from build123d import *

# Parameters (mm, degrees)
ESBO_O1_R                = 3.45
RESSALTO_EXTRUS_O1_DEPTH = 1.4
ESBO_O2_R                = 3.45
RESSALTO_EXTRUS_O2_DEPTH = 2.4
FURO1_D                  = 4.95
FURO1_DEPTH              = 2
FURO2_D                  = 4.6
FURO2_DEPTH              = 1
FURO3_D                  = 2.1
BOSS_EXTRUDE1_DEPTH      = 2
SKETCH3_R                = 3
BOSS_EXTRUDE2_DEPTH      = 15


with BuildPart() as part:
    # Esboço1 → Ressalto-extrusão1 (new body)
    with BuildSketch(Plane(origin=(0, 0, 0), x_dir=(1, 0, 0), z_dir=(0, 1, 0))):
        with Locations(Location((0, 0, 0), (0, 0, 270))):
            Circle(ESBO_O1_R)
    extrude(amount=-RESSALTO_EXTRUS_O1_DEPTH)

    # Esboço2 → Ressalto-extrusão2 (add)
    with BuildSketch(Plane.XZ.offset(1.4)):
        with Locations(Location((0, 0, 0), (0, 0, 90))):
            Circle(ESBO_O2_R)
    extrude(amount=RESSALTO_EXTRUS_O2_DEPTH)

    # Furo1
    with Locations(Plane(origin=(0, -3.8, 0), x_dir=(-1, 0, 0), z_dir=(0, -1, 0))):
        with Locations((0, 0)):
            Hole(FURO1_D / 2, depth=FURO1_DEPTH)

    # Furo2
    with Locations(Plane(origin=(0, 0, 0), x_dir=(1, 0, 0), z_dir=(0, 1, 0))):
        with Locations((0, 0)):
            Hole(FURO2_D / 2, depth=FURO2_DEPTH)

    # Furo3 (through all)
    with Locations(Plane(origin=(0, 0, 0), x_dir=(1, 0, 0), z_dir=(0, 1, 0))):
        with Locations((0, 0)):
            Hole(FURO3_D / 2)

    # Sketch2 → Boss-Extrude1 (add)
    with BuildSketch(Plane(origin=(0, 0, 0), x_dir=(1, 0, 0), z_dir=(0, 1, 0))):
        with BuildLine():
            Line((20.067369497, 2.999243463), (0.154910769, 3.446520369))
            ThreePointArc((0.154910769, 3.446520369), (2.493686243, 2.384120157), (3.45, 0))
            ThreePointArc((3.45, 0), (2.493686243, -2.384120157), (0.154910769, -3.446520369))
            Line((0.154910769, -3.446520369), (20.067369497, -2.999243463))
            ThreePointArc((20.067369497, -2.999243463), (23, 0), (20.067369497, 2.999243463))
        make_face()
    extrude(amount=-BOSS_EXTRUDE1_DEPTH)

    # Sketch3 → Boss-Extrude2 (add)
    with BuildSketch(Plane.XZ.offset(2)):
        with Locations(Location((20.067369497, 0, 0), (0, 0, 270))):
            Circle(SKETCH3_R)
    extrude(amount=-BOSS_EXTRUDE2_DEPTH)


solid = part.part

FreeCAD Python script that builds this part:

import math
import FreeCAD as App
import Part
import Sketcher
from FreeCAD import Vector
Q = App.Units.Quantity

doc = App.newDocument("Part")
body = doc.addObject("PartDesign::Body", "Body")

sketch1 = body.newObject("Sketcher::SketchObject", "Sketch")
sketch1.AttachmentSupport = (doc.getObject("XZ_Plane"), [""])
sketch1.MapMode = "FlatFace"
sketch1.addGeometry(Part.Circle(Vector(0, 0, 0), Vector(0, 0, 1), 3.5), False)
sketch1.addConstraint(Sketcher.Constraint("Coincident", 0, 3, -1, 1))
sketch1.addConstraint(Sketcher.Constraint("Diameter", 0, Q("6.9 mm")))
pad1 = body.newObject("PartDesign::Pad", "Pad")
pad1.Profile = sketch1
pad1.Length = 1.4

sketch2 = body.newObject("Sketcher::SketchObject", "Sketch001")
sketch2.AttachmentSupport = (doc.getObject("XZ_Plane"), [""])
sketch2.MapMode = "FlatFace"
sketch2.AttachmentOffset = App.Placement(Vector(0, 0, 1.4), App.Rotation())
sketch2.addGeometry(Part.Circle(Vector(0, 0, 0), Vector(0, 0, 1), 3.5), False)
sketch2.addConstraint(Sketcher.Constraint("Coincident", 0, 3, -1, 1))
sketch2.addConstraint(Sketcher.Constraint("Diameter", 0, Q("6.9 mm")))
pad2 = body.newObject("PartDesign::Pad", "Pad001")
pad2.Profile = sketch2
pad2.Length = 2.4

sketch3 = body.newObject("Sketcher::SketchObject", "Sketch002")
sketch3.AttachmentSupport = (doc.getObject("XZ_Plane"), [""])
sketch3.MapMode = "FlatFace"
sketch3.AttachmentOffset = App.Placement(Vector(0, 0, 3.8), App.Rotation())
sketch3.addGeometry(Part.Circle(Vector(0, 0, 0), Vector(0, 0, 1), 2.5), False)
sketch3.addConstraint(Sketcher.Constraint("Coincident", 0, 3, -1, 1))
sketch3.addConstraint(Sketcher.Constraint("Diameter", 0, Q("4.95 mm")))
doc.recompute()
hole = body.newObject("PartDesign::Hole", "Hole")
hole.Profile = sketch3
hole.ThreadType = "None"
hole.Diameter = 4.95
hole.DepthType = "Dimension"
hole.Depth = 2
hole.DrillPoint = "Flat"

sketch4 = body.newObject("Sketcher::SketchObject", "Sketch003")
sketch4.AttachmentSupport = (doc.getObject("XZ_Plane"), [""])
sketch4.MapMode = "FlatFace"
sketch4.addGeometry(Part.Circle(Vector(0, 0, 0), Vector(0, 0, 1), 2.3), False)
sketch4.addConstraint(Sketcher.Constraint("Coincident", 0, 3, -1, 1))
sketch4.addConstraint(Sketcher.Constraint("Diameter", 0, Q("4.6 mm")))
doc.recompute()
hole2 = body.newObject("PartDesign::Hole", "Hole001")
hole2.Profile = sketch4
hole2.ThreadType = "None"
hole2.Diameter = 4.6
hole2.DepthType = "Dimension"
hole2.Depth = 1
hole2.DrillPoint = "Flat"
hole2.Reversed = True

sketch5 = body.newObject("Sketcher::SketchObject", "Sketch004")
sketch5.AttachmentSupport = (doc.getObject("XZ_Plane"), [""])
sketch5.MapMode = "FlatFace"
sketch5.addGeometry(Part.Circle(Vector(0, 0, 0), Vector(0, 0, 1), 1.1), False)
sketch5.addConstraint(Sketcher.Constraint("Coincident", 0, 3, -1, 1))
sketch5.addConstraint(Sketcher.Constraint("Diameter", 0, Q("2.1 mm")))
doc.recompute()
hole3 = body.newObject("PartDesign::Hole", "Hole002")
hole3.Profile = sketch5
hole3.ThreadType = "None"
hole3.Diameter = 2.1
hole3.DepthType = "ThroughAll"
hole3.Reversed = True

sketch6 = body.newObject("Sketcher::SketchObject", "Sketch005")
sketch6.AttachmentSupport = (doc.getObject("XZ_Plane"), [""])
sketch6.MapMode = "FlatFace"
sketch6.addGeometry(Part.LineSegment(Vector(20.1, -3, 0), Vector(0.2, -3.4, 0)), False)
sketch6.addGeometry(Part.ArcOfCircle(Part.Circle(Vector(0, 0, 0), Vector(0, 0, 1), 3.4), math.radians(-87), math.radians(0)), False)
sketch6.addGeometry(Part.ArcOfCircle(Part.Circle(Vector(0, 0, 0), Vector(0, 0, 1), 3.4), math.radians(0), math.radians(87)), False)
sketch6.addGeometry(Part.LineSegment(Vector(0.2, 3.4, 0), Vector(20.1, 3, 0)), False)
sketch6.addGeometry(Part.ArcOfCircle(Part.Circle(Vector(20, 0, 0), Vector(0, 0, 1), 3), math.radians(-89), math.radians(89)), False)
sketch6.addConstraint(Sketcher.Constraint("Coincident", 0, 2, 1, 1))
sketch6.addConstraint(Sketcher.Constraint("Tangent", 1, 2, 2, 1))
sketch6.addConstraint(Sketcher.Constraint("Coincident", 2, 2, 3, 1))
sketch6.addConstraint(Sketcher.Constraint("Tangent", 3, 2, 4, 2))
sketch6.addConstraint(Sketcher.Constraint("Tangent", 4, 1, 0, 1))
sketch6.addConstraint(Sketcher.Constraint("Coincident", 1, 3, -1, 1))
sketch6.addConstraint(Sketcher.Constraint("Equal", 1, 2))
sketch6.addConstraint(Sketcher.Constraint("Symmetric", 3, 2, 4, 1, -1))
sketch6.addConstraint(Sketcher.Constraint("PointOnObject", 1, 2, -1))
sketch6.addConstraint(Sketcher.Constraint("Radius", 4, Q("3 mm")))
sketch6.addConstraint(Sketcher.Constraint("Radius", 1, Q("3.45 mm")))
sketch6.addConstraint(Sketcher.Constraint("DistanceX", -1, 1, 4, 3, Q("20 mm")))
sketch6.addConstraint(Sketcher.Constraint("Distance", 0, Q("19.917481 mm")))
pad3 = body.newObject("PartDesign::Pad", "Pad002")
pad3.Profile = sketch6
pad3.Length = 2

sketch7 = body.newObject("Sketcher::SketchObject", "Sketch006")
sketch7.AttachmentSupport = (doc.getObject("XZ_Plane"), [""])
sketch7.MapMode = "FlatFace"
sketch7.AttachmentOffset = App.Placement(Vector(0, 0, 2), App.Rotation())
sketch7.addGeometry(Part.Circle(Vector(20.1, 0, 0), Vector(0, 0, 1), 3), False)
sketch7.addConstraint(Sketcher.Constraint("PointOnObject", 0, 3, -1))
sketch7.addConstraint(Sketcher.Constraint("Diameter", 0, Q("6 mm")))
sketch7.addConstraint(Sketcher.Constraint("DistanceX", -1, 1, 0, 3, Q("20.067369 mm")))
pad4 = body.newObject("PartDesign::Pad", "Pad003")
pad4.Profile = sketch7
pad4.Length = 15
pad4.Reversed = True

doc.recompute()
